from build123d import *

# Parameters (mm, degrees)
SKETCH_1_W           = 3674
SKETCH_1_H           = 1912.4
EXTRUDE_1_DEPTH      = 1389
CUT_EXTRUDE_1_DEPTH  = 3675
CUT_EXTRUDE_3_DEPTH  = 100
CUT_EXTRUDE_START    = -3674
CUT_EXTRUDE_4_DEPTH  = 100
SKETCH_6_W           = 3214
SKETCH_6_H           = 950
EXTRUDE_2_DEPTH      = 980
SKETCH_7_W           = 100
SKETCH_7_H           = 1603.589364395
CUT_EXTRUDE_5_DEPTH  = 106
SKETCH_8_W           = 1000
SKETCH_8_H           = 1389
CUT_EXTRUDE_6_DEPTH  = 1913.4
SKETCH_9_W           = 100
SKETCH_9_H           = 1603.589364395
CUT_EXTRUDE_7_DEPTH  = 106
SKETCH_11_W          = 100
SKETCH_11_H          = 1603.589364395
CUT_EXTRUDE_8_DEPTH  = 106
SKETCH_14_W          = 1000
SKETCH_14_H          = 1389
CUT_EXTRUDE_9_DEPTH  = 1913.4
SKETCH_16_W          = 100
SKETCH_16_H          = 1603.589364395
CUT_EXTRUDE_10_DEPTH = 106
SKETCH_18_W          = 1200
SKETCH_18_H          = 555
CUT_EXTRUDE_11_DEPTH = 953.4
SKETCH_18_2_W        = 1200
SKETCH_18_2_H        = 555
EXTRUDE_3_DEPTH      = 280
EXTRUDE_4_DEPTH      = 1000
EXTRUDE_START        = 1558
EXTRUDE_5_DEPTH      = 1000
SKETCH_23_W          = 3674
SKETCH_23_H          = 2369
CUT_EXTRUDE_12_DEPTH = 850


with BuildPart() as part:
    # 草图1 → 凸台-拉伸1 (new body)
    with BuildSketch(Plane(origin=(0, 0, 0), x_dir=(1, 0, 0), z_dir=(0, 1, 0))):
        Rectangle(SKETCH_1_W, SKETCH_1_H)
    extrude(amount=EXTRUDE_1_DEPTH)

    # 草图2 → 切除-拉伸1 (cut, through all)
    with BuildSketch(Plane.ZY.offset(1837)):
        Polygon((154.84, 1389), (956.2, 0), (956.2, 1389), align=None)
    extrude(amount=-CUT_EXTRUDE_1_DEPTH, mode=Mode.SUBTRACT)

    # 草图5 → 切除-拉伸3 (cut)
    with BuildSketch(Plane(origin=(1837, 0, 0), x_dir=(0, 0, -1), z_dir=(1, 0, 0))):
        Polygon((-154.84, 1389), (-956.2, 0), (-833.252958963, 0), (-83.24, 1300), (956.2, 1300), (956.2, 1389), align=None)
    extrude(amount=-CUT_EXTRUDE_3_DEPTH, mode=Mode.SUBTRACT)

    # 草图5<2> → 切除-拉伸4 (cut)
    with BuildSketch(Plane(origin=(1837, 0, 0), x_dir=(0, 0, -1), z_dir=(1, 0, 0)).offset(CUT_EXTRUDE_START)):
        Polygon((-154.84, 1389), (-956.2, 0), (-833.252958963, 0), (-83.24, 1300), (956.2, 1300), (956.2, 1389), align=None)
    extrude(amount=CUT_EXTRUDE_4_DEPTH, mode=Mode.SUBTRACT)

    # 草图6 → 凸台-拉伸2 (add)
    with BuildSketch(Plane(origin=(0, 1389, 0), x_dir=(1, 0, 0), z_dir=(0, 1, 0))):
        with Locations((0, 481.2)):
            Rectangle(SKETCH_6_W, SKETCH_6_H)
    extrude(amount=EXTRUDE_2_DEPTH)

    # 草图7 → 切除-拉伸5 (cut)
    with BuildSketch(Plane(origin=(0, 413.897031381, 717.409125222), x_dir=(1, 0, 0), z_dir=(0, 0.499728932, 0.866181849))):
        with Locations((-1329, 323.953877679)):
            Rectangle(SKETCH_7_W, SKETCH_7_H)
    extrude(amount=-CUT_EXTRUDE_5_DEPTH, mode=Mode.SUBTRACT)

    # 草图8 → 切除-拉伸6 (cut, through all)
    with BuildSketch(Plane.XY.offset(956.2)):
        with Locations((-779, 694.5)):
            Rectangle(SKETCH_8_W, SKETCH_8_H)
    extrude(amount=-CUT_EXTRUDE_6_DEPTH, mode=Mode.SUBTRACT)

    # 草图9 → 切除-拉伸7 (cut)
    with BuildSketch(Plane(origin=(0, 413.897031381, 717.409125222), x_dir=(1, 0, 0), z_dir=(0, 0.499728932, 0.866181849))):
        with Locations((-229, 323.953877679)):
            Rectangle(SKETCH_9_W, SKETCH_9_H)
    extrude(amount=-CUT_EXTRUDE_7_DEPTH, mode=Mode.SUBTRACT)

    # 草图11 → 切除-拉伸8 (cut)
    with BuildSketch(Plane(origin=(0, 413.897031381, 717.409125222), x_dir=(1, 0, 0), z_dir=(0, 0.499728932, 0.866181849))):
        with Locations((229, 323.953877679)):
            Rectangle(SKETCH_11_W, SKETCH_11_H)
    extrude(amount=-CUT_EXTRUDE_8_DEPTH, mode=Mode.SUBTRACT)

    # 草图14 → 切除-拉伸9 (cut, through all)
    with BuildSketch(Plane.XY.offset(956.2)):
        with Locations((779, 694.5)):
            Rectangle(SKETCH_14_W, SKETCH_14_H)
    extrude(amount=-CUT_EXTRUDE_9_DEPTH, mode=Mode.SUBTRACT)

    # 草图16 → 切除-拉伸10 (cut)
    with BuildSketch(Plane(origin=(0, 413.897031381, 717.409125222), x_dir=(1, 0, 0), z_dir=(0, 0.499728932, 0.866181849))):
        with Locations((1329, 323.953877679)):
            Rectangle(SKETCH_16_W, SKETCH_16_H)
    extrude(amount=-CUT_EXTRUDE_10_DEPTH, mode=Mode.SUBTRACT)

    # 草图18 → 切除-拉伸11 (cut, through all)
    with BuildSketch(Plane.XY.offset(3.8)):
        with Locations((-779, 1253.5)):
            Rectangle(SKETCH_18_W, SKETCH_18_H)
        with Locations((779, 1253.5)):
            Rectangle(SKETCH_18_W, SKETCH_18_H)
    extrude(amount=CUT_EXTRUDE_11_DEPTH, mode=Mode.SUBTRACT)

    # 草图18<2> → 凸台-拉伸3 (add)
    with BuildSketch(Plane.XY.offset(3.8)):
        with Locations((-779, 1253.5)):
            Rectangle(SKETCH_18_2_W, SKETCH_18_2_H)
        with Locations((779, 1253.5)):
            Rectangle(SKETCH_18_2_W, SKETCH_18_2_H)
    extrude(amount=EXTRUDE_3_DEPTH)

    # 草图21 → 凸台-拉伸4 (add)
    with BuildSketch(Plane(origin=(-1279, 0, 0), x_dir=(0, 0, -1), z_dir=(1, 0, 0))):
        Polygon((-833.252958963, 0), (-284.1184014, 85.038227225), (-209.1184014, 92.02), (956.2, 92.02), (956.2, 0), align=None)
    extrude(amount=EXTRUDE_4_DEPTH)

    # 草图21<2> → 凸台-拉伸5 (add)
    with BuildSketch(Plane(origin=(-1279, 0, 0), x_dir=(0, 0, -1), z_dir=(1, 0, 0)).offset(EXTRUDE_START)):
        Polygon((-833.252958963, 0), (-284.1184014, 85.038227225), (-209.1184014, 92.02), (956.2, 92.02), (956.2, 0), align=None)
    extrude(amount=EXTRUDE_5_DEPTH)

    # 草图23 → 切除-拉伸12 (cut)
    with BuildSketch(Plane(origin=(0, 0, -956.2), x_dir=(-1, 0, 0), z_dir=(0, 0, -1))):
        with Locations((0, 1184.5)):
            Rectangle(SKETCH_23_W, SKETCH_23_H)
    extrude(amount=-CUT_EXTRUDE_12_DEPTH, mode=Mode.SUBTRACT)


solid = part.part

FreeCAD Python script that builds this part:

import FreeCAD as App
import Part
import Sketcher
from FreeCAD import Vector
Q = App.Units.Quantity


def add_polygon(sketch, points):
    """Adds a closed chain of lines whose ends are joined by coincident constraints."""
    first, n = sketch.GeometryCount, len(points)
    for a, b in zip(points, points[1:] + points[:1]):
        sketch.addGeometry(Part.LineSegment(App.Vector(*a, 0), App.Vector(*b, 0)), False)
    for i in range(n):
        sketch.addConstraint(Sketcher.Constraint("Coincident", first + i, 2, first + (i + 1) % n, 1))

doc = App.newDocument("Part")
body = doc.addObject("PartDesign::Body", "Body")

# Sketch on XZ plane
sketch1 = doc.addObject("Sketcher::SketchObject", "Sketch")
body.addObject(sketch1)
sketch1.AttachmentSupport = (doc.XZ_Plane, [""])
sketch1.MapMode = "FlatFace"
add_polygon(sketch1, [(-1837, -956.2), (-1837, 956.2), (1837, 956.2), (1837, -956.2)])  # lines 0-3
sketch1.addConstraint([
    Sketcher.Constraint("Vertical", 0),
    Sketcher.Constraint("Horizontal", 1),
    Sketcher.Constraint("Vertical", 2),
    Sketcher.Constraint("Horizontal", 3),
    Sketcher.Constraint("Symmetric", 0, 2, 2, 2, -1, 1),
    Sketcher.Constraint("DistanceX", 1, 1, 1, 2, Q("3674 mm")),
    Sketcher.Constraint("DistanceY", 0, 1, 0, 2, Q("1912.4 mm")),
])
pad1 = doc.addObject("PartDesign::Pad", "Pad")
body.addObject(pad1)
pad1.Profile = sketch1
pad1.Length = 1389
pad1.Reversed = True

# Sketch on YZ plane
sketch2 = doc.addObject("Sketcher::SketchObject", "Sketch001")
body.addObject(sketch2)
sketch2.AttachmentSupport = (doc.YZ_Plane, [""])
sketch2.MapMode = "FlatFace"
sketch2.AttachmentOffset = App.Placement(Vector(0, 0, -1837), App.Rotation())
add_polygon(sketch2, [(1389, 154.84), (0, 956.2), (1389, 956.2)])  # lines 0-2
sketch2.addConstraint([
    Sketcher.Constraint("Horizontal", 1),
    Sketcher.Constraint("Vertical", 2),
    Sketcher.Constraint("PointOnObject", 0, 2, -2),
    Sketcher.Constraint("DistanceX", 1, 1, 1, 2, Q("1389 mm")),
    Sketcher.Constraint("DistanceY", 2, 2, 2, 1, Q("801.36 mm")),
    Sketcher.Constraint("DistanceY", -1, 1, 0, 2, Q("956.2 mm")),
])
pocket1 = doc.addObject("PartDesign::Pocket", "Pocket")
body.addObject(pocket1)
pocket1.Profile = sketch2
pocket1.Type = "ThroughAll"
pocket1.Reversed = True

# Sketch on YZ plane
sketch3 = doc.addObject("Sketcher::SketchObject", "Sketch002")
body.addObject(sketch3)
sketch3.AttachmentSupport = (doc.YZ_Plane, [""])
sketch3.MapMode = "FlatFace"
sketch3.AttachmentOffset = App.Placement(Vector(0, 0, 1837), App.Rotation())
add_polygon(sketch3, [(1389, 154.84), (0, 956.2), (0, 833.252959), (1300, 83.24), (1300, -956.2), (1389, -956.2)])  # lines 0-5
sketch3.addConstraint([
    Sketcher.Constraint("Vertical", 1),
    Sketcher.Constraint("Vertical", 3),
    Sketcher.Constraint("Horizontal", 4),
    Sketcher.Constraint("Vertical", 5),
    Sketcher.Constraint("PointOnObject", 0, 2, -2),
    Sketcher.Constraint("Parallel", 0, 2),
    Sketcher.Constraint("DistanceX", 4, 1, 4, 2, Q("89 mm")),
    Sketcher.Constraint("DistanceX", -1, 1, 2, 2, Q("1300 mm")),
    Sketcher.Constraint("DistanceY", 3, 2, 3, 1, Q("1039.44 mm")),
    Sketcher.Constraint("DistanceY", 5, 1, 5, 2, Q("1111.04 mm")),
    Sketcher.Constraint("DistanceY", -1, 1, 0, 2, Q("956.2 mm")),
    Sketcher.Constraint("DistanceY", 3, 2, -1, 1, Q("956.2 mm")),
])
pocket2 = doc.addObject("PartDesign::Pocket", "Pocket001")
body.addObject(pocket2)
pocket2.Profile = sketch3
pocket2.Length = 100

# Sketch on YZ plane
sketch4 = doc.addObject("Sketcher::SketchObject", "Sketch003")
body.addObject(sketch4)
sketch4.AttachmentSupport = (doc.YZ_Plane, [""])
sketch4.MapMode = "FlatFace"
sketch4.AttachmentOffset = App.Placement(Vector(0, 0, -1837), App.Rotation())
add_polygon(sketch4, [(1389, 154.84), (0, 956.2), (0, 833.252959), (1300, 83.24), (1300, -956.2), (1389, -956.2)])  # lines 0-5
sketch4.addConstraint([
    Sketcher.Constraint("Vertical", 1),
    Sketcher.Constraint("Vertical", 3),
    Sketcher.Constraint("Horizontal", 4),
    Sketcher.Constraint("Vertical", 5),
    Sketcher.Constraint("PointOnObject", 0, 2, -2),
    Sketcher.Constraint("Parallel", 0, 2),
    Sketcher.Constraint("DistanceX", 4, 1, 4, 2, Q("89 mm")),
    Sketcher.Constraint("DistanceX", -1, 1, 2, 2, Q("1300 mm")),
    Sketcher.Constraint("DistanceY", 3, 2, 3, 1, Q("1039.44 mm")),
    Sketcher.Constraint("DistanceY", 5, 1, 5, 2, Q("1111.04 mm")),
    Sketcher.Constraint("DistanceY", -1, 1, 0, 2, Q("956.2 mm")),
    Sketcher.Constraint("DistanceY", 3, 2, -1, 1, Q("956.2 mm")),
])
pocket3 = doc.addObject("PartDesign::Pocket", "Pocket002")
body.addObject(pocket3)
pocket3.Profile = sketch4
pocket3.Length = 100
pocket3.Reversed = True

# Sketch on XZ plane
sketch5 = doc.addObject("Sketcher::SketchObject", "Sketch004")
body.addObject(sketch5)
sketch5.AttachmentSupport = (doc.XZ_Plane, [""])
sketch5.MapMode = "FlatFace"
sketch5.AttachmentOffset = App.Placement(Vector(0, 0, -1389), App.Rotation())
add_polygon(sketch5, [(-1607, -956.2), (-1607, -6.2), (1607, -6.2), (1607, -956.2)])  # lines 0-3
sketch5.addConstraint([
    Sketcher.Constraint("Vertical", 0),
    Sketcher.Constraint("Horizontal", 1),
    Sketcher.Constraint("Vertical", 2),
    Sketcher.Constraint("Horizontal", 3),
    Sketcher.Constraint("DistanceX", 1, 1, 1, 2, Q("3214 mm")),
    Sketcher.Constraint("DistanceY", 0, 1, 0, 2, Q("950 mm")),
    Sketcher.Constraint("DistanceX", 0, 2, -1, 1, Q("1607 mm")),
    Sketcher.Constraint("DistanceY", 0, 2, -1, 1, Q("6.2 mm")),
])
pad2 = doc.addObject("PartDesign::Pad", "Pad001")
body.addObject(pad2)
pad2.Profile = sketch5
pad2.Length = 980
pad2.Reversed = True

# Sketch on an angled plane
sketch6 = doc.addObject("Sketcher::SketchObject", "Sketch005")
body.addObject(sketch6)
sketch6.Placement = App.Placement(Vector(0, 413.897031, 717.409125), App.Rotation(Vector(1, 0, 0), Vector(0, 0.866181849, -0.499728932), Vector(0, 0.499728932, 0.866181849), "ZXY"))
add_polygon(sketch6, [(-1379, 1125.748561), (-1379, -477.840805), (-1279, -477.840805), (-1279, 1125.748561)])  # lines 0-3
sketch6.addConstraint([
    Sketcher.Constraint("Vertical", 0),
    Sketcher.Constraint("Horizontal", 1),
    Sketcher.Constraint("Vertical", 2),
    Sketcher.Constraint("Horizontal", 3),
    Sketcher.Constraint("DistanceX", 1, 1, 1, 2, Q("100 mm")),
    Sketcher.Constraint("DistanceX", 0, 2, -1, 1, Q("1379 mm")),
    Sketcher.Constraint("DistanceY", 0, 2, 0, 1, Q("1603.589366 mm")),
    Sketcher.Constraint("DistanceY", -1, 1, 2, 2, Q("1125.748561 mm")),
])
pocket4 = doc.addObject("PartDesign::Pocket", "Pocket003")
body.addObject(pocket4)
pocket4.Profile = sketch6
pocket4.Length = 106

# Sketch on XY plane
sketch7 = doc.addObject("Sketcher::SketchObject", "Sketch006")
body.addObject(sketch7)
sketch7.AttachmentSupport = (doc.XY_Plane, [""])
sketch7.MapMode = "FlatFace"
sketch7.AttachmentOffset = App.Placement(Vector(0, 0, 956.2), App.Rotation())
add_polygon(sketch7, [(-1279, 1389), (-1279, 0), (-279, 0), (-279, 1389)])  # lines 0-3
sketch7.addConstraint([
    Sketcher.Constraint("Vertical", 0),
    Sketcher.Constraint("Horizontal", 1),
    Sketcher.Constraint("Vertical", 2),
    Sketcher.Constraint("Horizontal", 3),
    Sketcher.Constraint("PointOnObject", 0, 2, -1),
    Sketcher.Constraint("DistanceX", 1, 1, 1, 2, Q("1000 mm")),
    Sketcher.Constraint("DistanceY", 0, 2, 0, 1, Q("1389 mm")),
    Sketcher.Constraint("DistanceX", 0, 2, -1, 1, Q("1279 mm")),
])
pocket5 = doc.addObject("PartDesign::Pocket", "Pocket004")
body.addObject(pocket5)
pocket5.Profile = sketch7
pocket5.Type = "ThroughAll"

# Sketch on an angled plane
sketch8 = doc.addObject("Sketcher::SketchObject", "Sketch007")
body.addObject(sketch8)
sketch8.Placement = App.Placement(Vector(0, 413.897031, 717.409125), App.Rotation(Vector(1, 0, 0), Vector(0, 0.866181849, -0.499728932), Vector(0, 0.499728932, 0.866181849), "ZXY"))
add_polygon(sketch8, [(-279, 1125.748561), (-279, -477.840805), (-179, -477.840805), (-179, 1125.748561)])  # lines 0-3
sketch8.addConstraint([
    Sketcher.Constraint("Vertical", 0),
    Sketcher.Constraint("Horizontal", 1),
    Sketcher.Constraint("Vertical", 2),
    Sketcher.Constraint("Horizontal", 3),
    Sketcher.Constraint("DistanceX", 1, 1, 1, 2, Q("100 mm")),
    Sketcher.Constraint("DistanceX", 0, 2, -1, 1, Q("279 mm")),
    Sketcher.Constraint("DistanceY", 0, 2, 0, 1, Q("1603.589366 mm")),
    Sketcher.Constraint("DistanceY", -1, 1, 2, 2, Q("1125.748561 mm")),
])
pocket6 = doc.addObject("PartDesign::Pocket", "Pocket005")
body.addObject(pocket6)
pocket6.Profile = sketch8
pocket6.Length = 106

# Sketch on an angled plane
sketch9 = doc.addObject("Sketcher::SketchObject", "Sketch008")
body.addObject(sketch9)
sketch9.Placement = App.Placement(Vector(0, 413.897031, 717.409125), App.Rotation(Vector(1, 0, 0), Vector(0, 0.866181849, -0.499728932), Vector(0, 0.499728932, 0.866181849), "ZXY"))
add_polygon(sketch9, [(179, 1125.748561), (179, -477.840805), (279, -477.840805), (279, 1125.748561)])  # lines 0-3
sketch9.addConstraint([
    Sketcher.Constraint("Vertical", 0),
    Sketcher.Constraint("Horizontal", 1),
    Sketcher.Constraint("Vertical", 2),
    Sketcher.Constraint("Horizontal", 3),
    Sketcher.Constraint("DistanceX", 1, 1, 1, 2, Q("100 mm")),
    Sketcher.Constraint("DistanceX", -1, 1, 0, 2, Q("179 mm")),
    Sketcher.Constraint("DistanceY", 0, 2, 0, 1, Q("1603.589366 mm")),
    Sketcher.Constraint("DistanceY", -1, 1, 2, 2, Q("1125.748561 mm")),
])
pocket7 = doc.addObject("PartDesign::Pocket", "Pocket006")
body.addObject(pocket7)
pocket7.Profile = sketch9
pocket7.Length = 106

# Sketch on XY plane
sketch10 = doc.addObject("Sketcher::SketchObject", "Sketch009")
body.addObject(sketch10)
sketch10.AttachmentSupport = (doc.XY_Plane, [""])
sketch10.MapMode = "FlatFace"
sketch10.AttachmentOffset = App.Placement(Vector(0, 0, 956.2), App.Rotation())
add_polygon(sketch10, [(279, 1389), (279, 0), (1279, 0), (1279, 1389)])  # lines 0-3
sketch10.addConstraint([
    Sketcher.Constraint("Vertical", 0),
    Sketcher.Constraint("Horizontal", 1),
    Sketcher.Constraint("Vertical", 2),
    Sketcher.Constraint("Horizontal", 3),
    Sketcher.Constraint("PointOnObject", 0, 2, -1),
    Sketcher.Constraint("DistanceX", 1, 1, 1, 2, Q("1000 mm")),
    Sketcher.Constraint("DistanceY", 0, 2, 0, 1, Q("1389 mm")),
    Sketcher.Constraint("DistanceX", -1, 1, 0, 2, Q("279 mm")),
])
pocket8 = doc.addObject("PartDesign::Pocket", "Pocket007")
body.addObject(pocket8)
pocket8.Profile = sketch10
pocket8.Type = "ThroughAll"

# Sketch on an angled plane
sketch11 = doc.addObject("Sketcher::SketchObject", "Sketch010")
body.addObject(sketch11)
sketch11.Placement = App.Placement(Vector(0, 413.897031, 717.409125), App.Rotation(Vector(1, 0, 0), Vector(0, 0.866181849, -0.499728932), Vector(0, 0.499728932, 0.866181849), "ZXY"))
add_polygon(sketch11, [(1279, 1125.748561), (1279, -477.840805), (1379, -477.840805), (1379, 1125.748561)])  # lines 0-3
sketch11.addConstraint([
    Sketcher.Constraint("Vertical", 0),
    Sketcher.Constraint("Horizontal", 1),
    Sketcher.Constraint("Vertical", 2),
    Sketcher.Constraint("Horizontal", 3),
    Sketcher.Constraint("DistanceX", 1, 1, 1, 2, Q("100 mm")),
    Sketcher.Constraint("DistanceX", -1, 1, 0, 2, Q("1279 mm")),
    Sketcher.Constraint("DistanceY", 0, 2, 0, 1, Q("1603.589366 mm")),
    Sketcher.Constraint("DistanceY", -1, 1, 2, 2, Q("1125.748561 mm")),
])
pocket9 = doc.addObject("PartDesign::Pocket", "Pocket008")
body.addObject(pocket9)
pocket9.Profile = sketch11
pocket9.Length = 106

# Sketch on XY plane
sketch12 = doc.addObject("Sketcher::SketchObject", "Sketch011")
body.addObject(sketch12)
sketch12.AttachmentSupport = (doc.XY_Plane, [""])
sketch12.MapMode = "FlatFace"
sketch12.AttachmentOffset = App.Placement(Vector(0, 0, 3.8), App.Rotation())
add_polygon(sketch12, [(-1379, 1531), (-1379, 976), (-179, 976), (-179, 1531)])  # lines 0-3
add_polygon(sketch12, [(179, 1531), (179, 976), (1379, 976), (1379, 1531)])  # lines 4-7
sketch12.addConstraint([
    Sketcher.Constraint("Vertical", 0),
    Sketcher.Constraint("Horizontal", 1),
    Sketcher.Constraint("Vertical", 2),
    Sketcher.Constraint("Horizontal", 3),
    Sketcher.Constraint("Vertical", 4),
    Sketcher.Constraint("Horizontal", 5),
    Sketcher.Constraint("Vertical", 6),
    Sketcher.Constraint("Horizontal", 7),
    Sketcher.Constraint("Symmetric", 1, 2, 4, 2, -2),
    Sketcher.Constraint("Symmetric", 3, 2, 6, 2, -2),
    Sketcher.Constraint("DistanceX", 1, 1, 1, 2, Q("1200 mm")),
    Sketcher.Constraint("DistanceY", 0, 2, 0, 1, Q("555 mm")),
    Sketcher.Constraint("DistanceX", 0, 2, -1, 1, Q("1379 mm")),
    Sketcher.Constraint("DistanceY", -1, 1, 0, 2, Q("976 mm")),
])
pocket10 = doc.addObject("PartDesign::Pocket", "Pocket009")
body.addObject(pocket10)
pocket10.Profile = sketch12
pocket10.Type = "ThroughAll"
pocket10.Reversed = True

# Sketch on XY plane
sketch13 = doc.addObject("Sketcher::SketchObject", "Sketch012")
body.addObject(sketch13)
sketch13.AttachmentSupport = (doc.XY_Plane, [""])
sketch13.MapMode = "FlatFace"
sketch13.AttachmentOffset = App.Placement(Vector(0, 0, 3.8), App.Rotation())
add_polygon(sketch13, [(-1379, 1531), (-1379, 976), (-179, 976), (-179, 1531)])  # lines 0-3
add_polygon(sketch13, [(179, 1531), (179, 976), (1379, 976), (1379, 1531)])  # lines 4-7
sketch13.addConstraint([
    Sketcher.Constraint("Vertical", 0),
    Sketcher.Constraint("Horizontal", 1),
    Sketcher.Constraint("Vertical", 2),
    Sketcher.Constraint("Horizontal", 3),
    Sketcher.Constraint("Vertical", 4),
    Sketcher.Constraint("Horizontal", 5),
    Sketcher.Constraint("Vertical", 6),
    Sketcher.Constraint("Horizontal", 7),
    Sketcher.Constraint("Symmetric", 1, 2, 4, 2, -2),
    Sketcher.Constraint("Symmetric", 3, 2, 6, 2, -2),
    Sketcher.Constraint("DistanceX", 1, 1, 1, 2, Q("1200 mm")),
    Sketcher.Constraint("DistanceY", 0, 2, 0, 1, Q("555 mm")),
    Sketcher.Constraint("DistanceX", 0, 2, -1, 1, Q("1379 mm")),
    Sketcher.Constraint("DistanceY", -1, 1, 0, 2, Q("976 mm")),
])
pad3 = doc.addObject("PartDesign::Pad", "Pad002")
body.addObject(pad3)
pad3.Profile = sketch13
pad3.Length = 280

# Sketch on YZ plane
sketch14 = doc.addObject("Sketcher::SketchObject", "Sketch013")
body.addObject(sketch14)
sketch14.AttachmentSupport = (doc.YZ_Plane, [""])
sketch14.MapMode = "FlatFace"
sketch14.AttachmentOffset = App.Placement(Vector(0, 0, -1279), App.Rotation())
add_polygon(sketch14, [(85.038227, 284.118401), (0, 833.252959), (0, -956.2), (92.02, -956.2), (92.02, 209.118401)])  # lines 0-4
sketch14.addConstraint([
    Sketcher.Constraint("Vertical", 1),
    Sketcher.Constraint("Horizontal", 2),
    Sketcher.Constraint("Vertical", 3),
    Sketcher.Constraint("PointOnObject", 0, 2, -2),
    Sketcher.Constraint("DistanceY", 3, 2, 4, 2, Q("75 mm")),
    Sketcher.Constraint("DistanceX", 2, 1, 2, 2, Q("92.02 mm")),
    Sketcher.Constraint("DistanceY", 1, 2, -1, 1, Q("956.2 mm")),
    Sketcher.Constraint("Distance", 0, Q("555.68 mm")),
    Sketcher.Constraint("DistanceY", 3, 1, 3, 2, Q("1165.318401 mm")),
    Sketcher.Constraint("DistanceY", 1, 2, 1, 1, Q("1789.452959 mm")),
])
pad4 = doc.addObject("PartDesign::Pad", "Pad003")
body.addObject(pad4)
pad4.Profile = sketch14
pad4.Length = 1000

# Sketch on YZ plane
sketch15 = doc.addObject("Sketcher::SketchObject", "Sketch014")
body.addObject(sketch15)
sketch15.AttachmentSupport = (doc.YZ_Plane, [""])
sketch15.MapMode = "FlatFace"
sketch15.AttachmentOffset = App.Placement(Vector(0, 0, 279), App.Rotation())
add_polygon(sketch15, [(85.038227, 284.118401), (0, 833.252959), (0, -956.2), (92.02, -956.2), (92.02, 209.118401)])  # lines 0-4
sketch15.addConstraint([
    Sketcher.Constraint("Vertical", 1),
    Sketcher.Constraint("Horizontal", 2),
    Sketcher.Constraint("Vertical", 3),
    Sketcher.Constraint("PointOnObject", 0, 2, -2),
    Sketcher.Constraint("DistanceY", 3, 2, 4, 2, Q("75 mm")),
    Sketcher.Constraint("DistanceX", 2, 1, 2, 2, Q("92.02 mm")),
    Sketcher.Constraint("DistanceY", 1, 2, -1, 1, Q("956.2 mm")),
    Sketcher.Constraint("Distance", 0, Q("555.68 mm")),
    Sketcher.Constraint("DistanceY", 3, 1, 3, 2, Q("1165.318401 mm")),
    Sketcher.Constraint("DistanceY", 1, 2, 1, 1, Q("1789.452959 mm")),
])
pad5 = doc.addObject("PartDesign::Pad", "Pad004")
body.addObject(pad5)
pad5.Profile = sketch15
pad5.Length = 1000

# Sketch on XY plane
sketch16 = doc.addObject("Sketcher::SketchObject", "Sketch015")
body.addObject(sketch16)
sketch16.AttachmentSupport = (doc.XY_Plane, [""])
sketch16.MapMode = "FlatFace"
sketch16.AttachmentOffset = App.Placement(Vector(0, 0, -956.2), App.Rotation())
add_polygon(sketch16, [(1837, 2369), (1837, 0), (-1837, 0), (-1837, 2369)])  # lines 0-3
sketch16.addConstraint([
    Sketcher.Constraint("Vertical", 0),
    Sketcher.Constraint("Horizontal", 1),
    Sketcher.Constraint("Vertical", 2),
    Sketcher.Constraint("Horizontal", 3),
    Sketcher.Constraint("Symmetric", 0, 2, 1, 2, -1, 1),
    Sketcher.Constraint("DistanceX", 1, 2, 1, 1, Q("3674 mm")),
    Sketcher.Constraint("DistanceY", 0, 2, 0, 1, Q("2369 mm")),
])
pocket11 = doc.addObject("PartDesign::Pocket", "Pocket010")
body.addObject(pocket11)
pocket11.Profile = sketch16
pocket11.Length = 850
pocket11.Reversed = True

doc.recompute()
